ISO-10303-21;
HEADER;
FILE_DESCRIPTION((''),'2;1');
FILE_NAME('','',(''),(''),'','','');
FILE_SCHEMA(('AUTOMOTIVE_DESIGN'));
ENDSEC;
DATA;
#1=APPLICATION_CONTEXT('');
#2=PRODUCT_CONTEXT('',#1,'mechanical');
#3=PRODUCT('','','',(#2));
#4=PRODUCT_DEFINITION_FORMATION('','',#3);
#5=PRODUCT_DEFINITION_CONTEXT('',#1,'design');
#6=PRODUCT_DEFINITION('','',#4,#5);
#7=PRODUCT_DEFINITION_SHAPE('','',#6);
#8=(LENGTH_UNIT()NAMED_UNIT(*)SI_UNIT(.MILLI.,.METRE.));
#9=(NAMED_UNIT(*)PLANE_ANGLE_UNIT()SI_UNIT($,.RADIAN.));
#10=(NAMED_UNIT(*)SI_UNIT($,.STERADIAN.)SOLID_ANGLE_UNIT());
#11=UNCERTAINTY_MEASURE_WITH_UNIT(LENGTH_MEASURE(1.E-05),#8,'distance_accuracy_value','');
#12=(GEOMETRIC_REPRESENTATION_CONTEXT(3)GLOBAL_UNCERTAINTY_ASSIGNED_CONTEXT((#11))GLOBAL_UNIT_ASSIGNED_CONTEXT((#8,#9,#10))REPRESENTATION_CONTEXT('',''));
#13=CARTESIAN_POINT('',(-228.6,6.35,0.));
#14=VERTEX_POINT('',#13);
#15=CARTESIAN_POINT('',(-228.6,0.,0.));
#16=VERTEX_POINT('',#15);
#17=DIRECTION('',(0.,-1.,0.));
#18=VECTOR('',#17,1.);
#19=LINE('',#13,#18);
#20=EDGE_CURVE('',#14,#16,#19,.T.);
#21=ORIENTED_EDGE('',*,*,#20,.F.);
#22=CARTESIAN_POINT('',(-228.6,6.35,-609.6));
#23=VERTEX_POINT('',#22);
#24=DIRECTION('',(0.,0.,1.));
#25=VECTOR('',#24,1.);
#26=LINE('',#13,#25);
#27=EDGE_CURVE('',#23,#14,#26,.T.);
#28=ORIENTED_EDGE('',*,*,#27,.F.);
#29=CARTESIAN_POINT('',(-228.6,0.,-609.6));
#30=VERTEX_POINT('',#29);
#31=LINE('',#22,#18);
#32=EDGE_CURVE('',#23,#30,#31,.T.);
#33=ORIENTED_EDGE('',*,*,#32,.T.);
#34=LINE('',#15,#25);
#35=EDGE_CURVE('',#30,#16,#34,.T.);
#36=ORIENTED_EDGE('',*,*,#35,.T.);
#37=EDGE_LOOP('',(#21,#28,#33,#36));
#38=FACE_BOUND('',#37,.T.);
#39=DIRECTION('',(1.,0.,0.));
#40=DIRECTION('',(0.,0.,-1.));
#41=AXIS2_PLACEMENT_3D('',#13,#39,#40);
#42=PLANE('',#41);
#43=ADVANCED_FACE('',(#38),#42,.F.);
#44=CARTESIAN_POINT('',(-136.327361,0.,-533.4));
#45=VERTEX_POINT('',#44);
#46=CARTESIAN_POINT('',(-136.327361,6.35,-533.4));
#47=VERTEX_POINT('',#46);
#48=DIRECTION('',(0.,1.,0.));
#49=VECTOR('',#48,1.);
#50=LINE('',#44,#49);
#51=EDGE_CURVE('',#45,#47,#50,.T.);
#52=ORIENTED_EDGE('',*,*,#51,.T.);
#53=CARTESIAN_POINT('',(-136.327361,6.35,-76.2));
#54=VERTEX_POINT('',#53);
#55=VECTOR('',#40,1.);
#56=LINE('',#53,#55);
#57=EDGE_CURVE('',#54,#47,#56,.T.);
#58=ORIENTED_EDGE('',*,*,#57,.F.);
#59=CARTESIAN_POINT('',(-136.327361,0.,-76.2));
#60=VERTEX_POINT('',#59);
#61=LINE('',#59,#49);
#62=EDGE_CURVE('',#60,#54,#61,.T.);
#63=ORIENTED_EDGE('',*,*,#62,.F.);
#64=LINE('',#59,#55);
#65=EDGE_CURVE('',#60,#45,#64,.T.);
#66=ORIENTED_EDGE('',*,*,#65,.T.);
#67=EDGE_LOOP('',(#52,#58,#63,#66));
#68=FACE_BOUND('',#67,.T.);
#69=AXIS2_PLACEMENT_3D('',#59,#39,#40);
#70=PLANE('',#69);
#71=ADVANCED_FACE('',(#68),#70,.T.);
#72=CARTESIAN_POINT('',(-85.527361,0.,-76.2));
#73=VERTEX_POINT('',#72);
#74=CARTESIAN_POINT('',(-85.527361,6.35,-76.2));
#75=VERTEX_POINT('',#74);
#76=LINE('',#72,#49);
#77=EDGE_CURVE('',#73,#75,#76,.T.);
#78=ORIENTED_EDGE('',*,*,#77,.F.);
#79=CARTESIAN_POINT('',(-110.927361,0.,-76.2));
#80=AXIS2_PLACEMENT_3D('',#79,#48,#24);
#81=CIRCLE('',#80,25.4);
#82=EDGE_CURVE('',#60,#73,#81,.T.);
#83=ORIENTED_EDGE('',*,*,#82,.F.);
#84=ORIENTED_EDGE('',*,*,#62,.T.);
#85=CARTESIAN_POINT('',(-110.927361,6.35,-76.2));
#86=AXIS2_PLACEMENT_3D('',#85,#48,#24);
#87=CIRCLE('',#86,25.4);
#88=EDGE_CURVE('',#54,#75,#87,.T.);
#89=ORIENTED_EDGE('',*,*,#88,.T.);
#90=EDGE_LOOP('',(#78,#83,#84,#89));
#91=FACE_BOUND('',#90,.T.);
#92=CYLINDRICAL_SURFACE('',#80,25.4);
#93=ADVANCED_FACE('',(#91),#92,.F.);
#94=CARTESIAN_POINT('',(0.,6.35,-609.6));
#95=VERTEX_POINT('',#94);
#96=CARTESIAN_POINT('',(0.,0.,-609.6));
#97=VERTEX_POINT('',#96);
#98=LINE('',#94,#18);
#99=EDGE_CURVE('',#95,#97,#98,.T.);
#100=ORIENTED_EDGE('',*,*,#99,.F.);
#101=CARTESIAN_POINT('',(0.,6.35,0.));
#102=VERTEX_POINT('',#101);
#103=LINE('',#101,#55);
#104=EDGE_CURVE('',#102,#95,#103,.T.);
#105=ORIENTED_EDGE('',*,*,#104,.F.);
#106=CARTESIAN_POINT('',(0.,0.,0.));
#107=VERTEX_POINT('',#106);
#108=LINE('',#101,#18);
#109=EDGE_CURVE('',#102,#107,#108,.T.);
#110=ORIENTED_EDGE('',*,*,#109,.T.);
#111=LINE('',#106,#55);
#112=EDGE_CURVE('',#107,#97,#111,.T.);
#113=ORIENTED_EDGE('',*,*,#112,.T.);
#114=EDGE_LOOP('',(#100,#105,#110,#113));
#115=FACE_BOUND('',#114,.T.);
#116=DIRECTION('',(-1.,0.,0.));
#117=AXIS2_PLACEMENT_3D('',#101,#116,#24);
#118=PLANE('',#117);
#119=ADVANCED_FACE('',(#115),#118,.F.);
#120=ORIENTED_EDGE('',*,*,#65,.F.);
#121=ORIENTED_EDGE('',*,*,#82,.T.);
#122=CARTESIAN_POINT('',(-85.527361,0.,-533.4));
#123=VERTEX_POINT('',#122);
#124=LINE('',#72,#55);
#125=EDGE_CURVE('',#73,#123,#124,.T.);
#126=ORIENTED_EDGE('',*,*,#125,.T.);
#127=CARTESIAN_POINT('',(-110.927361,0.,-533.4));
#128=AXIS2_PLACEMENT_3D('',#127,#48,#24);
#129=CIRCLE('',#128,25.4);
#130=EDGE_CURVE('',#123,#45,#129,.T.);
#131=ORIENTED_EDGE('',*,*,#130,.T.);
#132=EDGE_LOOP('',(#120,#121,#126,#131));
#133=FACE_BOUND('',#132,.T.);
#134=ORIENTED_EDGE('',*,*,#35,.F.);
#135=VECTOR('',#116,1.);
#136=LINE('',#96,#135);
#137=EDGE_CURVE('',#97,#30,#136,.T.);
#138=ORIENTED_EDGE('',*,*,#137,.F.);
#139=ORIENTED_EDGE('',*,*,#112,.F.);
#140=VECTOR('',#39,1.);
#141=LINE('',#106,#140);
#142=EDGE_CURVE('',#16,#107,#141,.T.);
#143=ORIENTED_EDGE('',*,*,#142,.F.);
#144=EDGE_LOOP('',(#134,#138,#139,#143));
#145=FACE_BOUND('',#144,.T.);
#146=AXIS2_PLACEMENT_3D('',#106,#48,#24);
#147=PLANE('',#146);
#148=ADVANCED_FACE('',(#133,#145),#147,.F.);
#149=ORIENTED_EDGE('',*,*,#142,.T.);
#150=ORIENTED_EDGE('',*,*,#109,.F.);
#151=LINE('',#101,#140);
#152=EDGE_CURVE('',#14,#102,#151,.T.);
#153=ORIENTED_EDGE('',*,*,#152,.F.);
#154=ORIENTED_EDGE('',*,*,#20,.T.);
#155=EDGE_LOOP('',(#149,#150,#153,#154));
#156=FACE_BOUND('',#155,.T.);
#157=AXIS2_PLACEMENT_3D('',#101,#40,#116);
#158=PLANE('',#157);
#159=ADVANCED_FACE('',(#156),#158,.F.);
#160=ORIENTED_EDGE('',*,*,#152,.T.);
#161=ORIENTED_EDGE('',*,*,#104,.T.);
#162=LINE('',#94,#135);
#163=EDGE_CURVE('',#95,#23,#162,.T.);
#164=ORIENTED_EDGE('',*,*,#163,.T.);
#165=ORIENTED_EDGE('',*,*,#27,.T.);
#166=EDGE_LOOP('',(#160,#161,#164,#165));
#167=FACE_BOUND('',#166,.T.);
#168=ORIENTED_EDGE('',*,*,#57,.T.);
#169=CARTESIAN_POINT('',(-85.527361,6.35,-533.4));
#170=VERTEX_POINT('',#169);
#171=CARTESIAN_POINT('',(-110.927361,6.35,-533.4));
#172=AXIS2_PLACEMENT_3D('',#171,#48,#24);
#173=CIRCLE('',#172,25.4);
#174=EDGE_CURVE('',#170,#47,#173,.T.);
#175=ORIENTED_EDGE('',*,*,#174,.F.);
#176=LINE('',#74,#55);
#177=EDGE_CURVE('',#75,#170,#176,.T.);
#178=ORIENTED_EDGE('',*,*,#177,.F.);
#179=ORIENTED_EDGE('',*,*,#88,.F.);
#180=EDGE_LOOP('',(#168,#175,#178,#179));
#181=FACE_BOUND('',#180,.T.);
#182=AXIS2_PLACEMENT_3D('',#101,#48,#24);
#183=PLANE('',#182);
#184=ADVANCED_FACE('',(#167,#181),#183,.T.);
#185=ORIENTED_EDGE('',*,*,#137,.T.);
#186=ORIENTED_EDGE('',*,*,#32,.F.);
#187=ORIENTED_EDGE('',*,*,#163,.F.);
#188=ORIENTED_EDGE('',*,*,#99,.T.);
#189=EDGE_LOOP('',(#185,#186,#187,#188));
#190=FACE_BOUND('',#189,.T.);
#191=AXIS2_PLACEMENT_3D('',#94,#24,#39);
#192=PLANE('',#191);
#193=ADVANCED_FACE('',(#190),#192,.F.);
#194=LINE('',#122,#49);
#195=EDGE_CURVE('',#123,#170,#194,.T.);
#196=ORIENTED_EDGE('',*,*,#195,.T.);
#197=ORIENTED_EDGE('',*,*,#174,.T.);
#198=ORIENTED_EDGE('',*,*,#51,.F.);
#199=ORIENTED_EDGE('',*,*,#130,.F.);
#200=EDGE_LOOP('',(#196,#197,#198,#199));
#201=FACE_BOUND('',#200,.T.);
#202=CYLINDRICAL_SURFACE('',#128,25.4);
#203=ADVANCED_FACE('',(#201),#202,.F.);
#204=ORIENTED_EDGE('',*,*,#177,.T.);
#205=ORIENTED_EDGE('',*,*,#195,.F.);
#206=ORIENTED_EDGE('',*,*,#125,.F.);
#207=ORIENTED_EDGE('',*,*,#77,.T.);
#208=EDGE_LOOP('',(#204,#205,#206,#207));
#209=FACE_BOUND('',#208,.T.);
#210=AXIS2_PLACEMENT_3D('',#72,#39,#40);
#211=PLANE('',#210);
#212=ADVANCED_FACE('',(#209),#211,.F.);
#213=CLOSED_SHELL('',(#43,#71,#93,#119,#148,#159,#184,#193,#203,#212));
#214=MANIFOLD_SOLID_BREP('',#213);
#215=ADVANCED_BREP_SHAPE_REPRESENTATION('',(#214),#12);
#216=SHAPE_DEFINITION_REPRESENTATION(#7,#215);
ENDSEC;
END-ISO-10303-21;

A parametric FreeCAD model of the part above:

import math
import FreeCAD as App
import Part
import Sketcher
Q = App.Units.Quantity

doc = App.newDocument("Part")
body = doc.addObject("PartDesign::Body", "Body")

sketch1 = body.newObject("Sketcher::SketchObject", "Sketch")
sketch1.AttachmentSupport = (doc.getObject("XZ_Plane"), [""])
sketch1.MapMode = "FlatFace"
sketch1.addGeometry([
    Part.LineSegment(App.Vector(-229, -610, 0), App.Vector(-229, 0, 0)),
    Part.LineSegment(App.Vector(-229, 0, 0), App.Vector(0, 0, 0)),
    Part.LineSegment(App.Vector(0, 0, 0), App.Vector(0, -610, 0)),
    Part.LineSegment(App.Vector(0, -610, 0), App.Vector(-229, -610, 0)),
], False)
sketch1.addConstraint([
    Sketcher.Constraint("Coincident", 0, 2, 1, 1),
    Sketcher.Constraint("Coincident", 1, 2, 2, 1),
    Sketcher.Constraint("Coincident", 2, 2, 3, 1),
    Sketcher.Constraint("Coincident", 3, 2, 0, 1),
    Sketcher.Constraint("Vertical", 0),
    Sketcher.Constraint("Horizontal", 1),
    Sketcher.Constraint("Vertical", 2),
    Sketcher.Constraint("Horizontal", 3),
    Sketcher.Constraint("Coincident", 1, 2, -1, 1),
    Sketcher.Constraint("DistanceX", 1, 1, 1, 2, Q("9 in")),
    Sketcher.Constraint("DistanceY", 0, 1, 0, 2, Q("24 in")),
])
pad1 = body.newObject("PartDesign::Pad", "Pad")
pad1.Profile = sketch1
pad1.Length = Q("0.25 in")
pad1.Reversed = True

sketch2 = body.newObject("Sketcher::SketchObject", "Sketch001")
sketch2.AttachmentSupport = (doc.getObject("XZ_Plane"), [""])
sketch2.MapMode = "FlatFace"
sketch2.AttachmentOffset = App.Placement(App.Vector(0, 0, -0.25 * 25.4), App.Rotation())
sketch2.addGeometry([
    Part.LineSegment(App.Vector(-136, -533, 0), App.Vector(-136, -76, 0)),
    Part.ArcOfCircle(Part.Circle(App.Vector(-111, -76, 0), App.Vector(0, 0, 1), 25), math.radians(0), math.radians(180)),
    Part.LineSegment(App.Vector(-86, -76, 0), App.Vector(-86, -533, 0)),
    Part.ArcOfCircle(Part.Circle(App.Vector(-111, -533, 0), App.Vector(0, 0, 1), 25), math.radians(180), math.radians(360)),
], False)
sketch2.addConstraint([
    Sketcher.Constraint("Tangent", 0, 2, 1, 2),
    Sketcher.Constraint("Tangent", 1, 1, 2, 1),
    Sketcher.Constraint("Tangent", 2, 2, 3, 2),
    Sketcher.Constraint("Tangent", 3, 1, 0, 1),
    Sketcher.Constraint("Vertical", 0),
    Sketcher.Constraint("Vertical", 2),
    Sketcher.Constraint("Radius", 1, Q("1 in")),
    Sketcher.Constraint("DistanceY", 0, 1, 0, 2, Q("18 in")),
    Sketcher.Constraint("DistanceY", 1, 3, -1, 1, Q("3 in")),
    Sketcher.Constraint("DistanceX", 1, 3, -1, 1, Q("110.927361 mm")),
])
pocket1 = body.newObject("PartDesign::Pocket", "Pocket")
pocket1.Profile = sketch2
pocket1.Length = Q("0.25 in")
pocket1.Reversed = True

doc.recompute()
